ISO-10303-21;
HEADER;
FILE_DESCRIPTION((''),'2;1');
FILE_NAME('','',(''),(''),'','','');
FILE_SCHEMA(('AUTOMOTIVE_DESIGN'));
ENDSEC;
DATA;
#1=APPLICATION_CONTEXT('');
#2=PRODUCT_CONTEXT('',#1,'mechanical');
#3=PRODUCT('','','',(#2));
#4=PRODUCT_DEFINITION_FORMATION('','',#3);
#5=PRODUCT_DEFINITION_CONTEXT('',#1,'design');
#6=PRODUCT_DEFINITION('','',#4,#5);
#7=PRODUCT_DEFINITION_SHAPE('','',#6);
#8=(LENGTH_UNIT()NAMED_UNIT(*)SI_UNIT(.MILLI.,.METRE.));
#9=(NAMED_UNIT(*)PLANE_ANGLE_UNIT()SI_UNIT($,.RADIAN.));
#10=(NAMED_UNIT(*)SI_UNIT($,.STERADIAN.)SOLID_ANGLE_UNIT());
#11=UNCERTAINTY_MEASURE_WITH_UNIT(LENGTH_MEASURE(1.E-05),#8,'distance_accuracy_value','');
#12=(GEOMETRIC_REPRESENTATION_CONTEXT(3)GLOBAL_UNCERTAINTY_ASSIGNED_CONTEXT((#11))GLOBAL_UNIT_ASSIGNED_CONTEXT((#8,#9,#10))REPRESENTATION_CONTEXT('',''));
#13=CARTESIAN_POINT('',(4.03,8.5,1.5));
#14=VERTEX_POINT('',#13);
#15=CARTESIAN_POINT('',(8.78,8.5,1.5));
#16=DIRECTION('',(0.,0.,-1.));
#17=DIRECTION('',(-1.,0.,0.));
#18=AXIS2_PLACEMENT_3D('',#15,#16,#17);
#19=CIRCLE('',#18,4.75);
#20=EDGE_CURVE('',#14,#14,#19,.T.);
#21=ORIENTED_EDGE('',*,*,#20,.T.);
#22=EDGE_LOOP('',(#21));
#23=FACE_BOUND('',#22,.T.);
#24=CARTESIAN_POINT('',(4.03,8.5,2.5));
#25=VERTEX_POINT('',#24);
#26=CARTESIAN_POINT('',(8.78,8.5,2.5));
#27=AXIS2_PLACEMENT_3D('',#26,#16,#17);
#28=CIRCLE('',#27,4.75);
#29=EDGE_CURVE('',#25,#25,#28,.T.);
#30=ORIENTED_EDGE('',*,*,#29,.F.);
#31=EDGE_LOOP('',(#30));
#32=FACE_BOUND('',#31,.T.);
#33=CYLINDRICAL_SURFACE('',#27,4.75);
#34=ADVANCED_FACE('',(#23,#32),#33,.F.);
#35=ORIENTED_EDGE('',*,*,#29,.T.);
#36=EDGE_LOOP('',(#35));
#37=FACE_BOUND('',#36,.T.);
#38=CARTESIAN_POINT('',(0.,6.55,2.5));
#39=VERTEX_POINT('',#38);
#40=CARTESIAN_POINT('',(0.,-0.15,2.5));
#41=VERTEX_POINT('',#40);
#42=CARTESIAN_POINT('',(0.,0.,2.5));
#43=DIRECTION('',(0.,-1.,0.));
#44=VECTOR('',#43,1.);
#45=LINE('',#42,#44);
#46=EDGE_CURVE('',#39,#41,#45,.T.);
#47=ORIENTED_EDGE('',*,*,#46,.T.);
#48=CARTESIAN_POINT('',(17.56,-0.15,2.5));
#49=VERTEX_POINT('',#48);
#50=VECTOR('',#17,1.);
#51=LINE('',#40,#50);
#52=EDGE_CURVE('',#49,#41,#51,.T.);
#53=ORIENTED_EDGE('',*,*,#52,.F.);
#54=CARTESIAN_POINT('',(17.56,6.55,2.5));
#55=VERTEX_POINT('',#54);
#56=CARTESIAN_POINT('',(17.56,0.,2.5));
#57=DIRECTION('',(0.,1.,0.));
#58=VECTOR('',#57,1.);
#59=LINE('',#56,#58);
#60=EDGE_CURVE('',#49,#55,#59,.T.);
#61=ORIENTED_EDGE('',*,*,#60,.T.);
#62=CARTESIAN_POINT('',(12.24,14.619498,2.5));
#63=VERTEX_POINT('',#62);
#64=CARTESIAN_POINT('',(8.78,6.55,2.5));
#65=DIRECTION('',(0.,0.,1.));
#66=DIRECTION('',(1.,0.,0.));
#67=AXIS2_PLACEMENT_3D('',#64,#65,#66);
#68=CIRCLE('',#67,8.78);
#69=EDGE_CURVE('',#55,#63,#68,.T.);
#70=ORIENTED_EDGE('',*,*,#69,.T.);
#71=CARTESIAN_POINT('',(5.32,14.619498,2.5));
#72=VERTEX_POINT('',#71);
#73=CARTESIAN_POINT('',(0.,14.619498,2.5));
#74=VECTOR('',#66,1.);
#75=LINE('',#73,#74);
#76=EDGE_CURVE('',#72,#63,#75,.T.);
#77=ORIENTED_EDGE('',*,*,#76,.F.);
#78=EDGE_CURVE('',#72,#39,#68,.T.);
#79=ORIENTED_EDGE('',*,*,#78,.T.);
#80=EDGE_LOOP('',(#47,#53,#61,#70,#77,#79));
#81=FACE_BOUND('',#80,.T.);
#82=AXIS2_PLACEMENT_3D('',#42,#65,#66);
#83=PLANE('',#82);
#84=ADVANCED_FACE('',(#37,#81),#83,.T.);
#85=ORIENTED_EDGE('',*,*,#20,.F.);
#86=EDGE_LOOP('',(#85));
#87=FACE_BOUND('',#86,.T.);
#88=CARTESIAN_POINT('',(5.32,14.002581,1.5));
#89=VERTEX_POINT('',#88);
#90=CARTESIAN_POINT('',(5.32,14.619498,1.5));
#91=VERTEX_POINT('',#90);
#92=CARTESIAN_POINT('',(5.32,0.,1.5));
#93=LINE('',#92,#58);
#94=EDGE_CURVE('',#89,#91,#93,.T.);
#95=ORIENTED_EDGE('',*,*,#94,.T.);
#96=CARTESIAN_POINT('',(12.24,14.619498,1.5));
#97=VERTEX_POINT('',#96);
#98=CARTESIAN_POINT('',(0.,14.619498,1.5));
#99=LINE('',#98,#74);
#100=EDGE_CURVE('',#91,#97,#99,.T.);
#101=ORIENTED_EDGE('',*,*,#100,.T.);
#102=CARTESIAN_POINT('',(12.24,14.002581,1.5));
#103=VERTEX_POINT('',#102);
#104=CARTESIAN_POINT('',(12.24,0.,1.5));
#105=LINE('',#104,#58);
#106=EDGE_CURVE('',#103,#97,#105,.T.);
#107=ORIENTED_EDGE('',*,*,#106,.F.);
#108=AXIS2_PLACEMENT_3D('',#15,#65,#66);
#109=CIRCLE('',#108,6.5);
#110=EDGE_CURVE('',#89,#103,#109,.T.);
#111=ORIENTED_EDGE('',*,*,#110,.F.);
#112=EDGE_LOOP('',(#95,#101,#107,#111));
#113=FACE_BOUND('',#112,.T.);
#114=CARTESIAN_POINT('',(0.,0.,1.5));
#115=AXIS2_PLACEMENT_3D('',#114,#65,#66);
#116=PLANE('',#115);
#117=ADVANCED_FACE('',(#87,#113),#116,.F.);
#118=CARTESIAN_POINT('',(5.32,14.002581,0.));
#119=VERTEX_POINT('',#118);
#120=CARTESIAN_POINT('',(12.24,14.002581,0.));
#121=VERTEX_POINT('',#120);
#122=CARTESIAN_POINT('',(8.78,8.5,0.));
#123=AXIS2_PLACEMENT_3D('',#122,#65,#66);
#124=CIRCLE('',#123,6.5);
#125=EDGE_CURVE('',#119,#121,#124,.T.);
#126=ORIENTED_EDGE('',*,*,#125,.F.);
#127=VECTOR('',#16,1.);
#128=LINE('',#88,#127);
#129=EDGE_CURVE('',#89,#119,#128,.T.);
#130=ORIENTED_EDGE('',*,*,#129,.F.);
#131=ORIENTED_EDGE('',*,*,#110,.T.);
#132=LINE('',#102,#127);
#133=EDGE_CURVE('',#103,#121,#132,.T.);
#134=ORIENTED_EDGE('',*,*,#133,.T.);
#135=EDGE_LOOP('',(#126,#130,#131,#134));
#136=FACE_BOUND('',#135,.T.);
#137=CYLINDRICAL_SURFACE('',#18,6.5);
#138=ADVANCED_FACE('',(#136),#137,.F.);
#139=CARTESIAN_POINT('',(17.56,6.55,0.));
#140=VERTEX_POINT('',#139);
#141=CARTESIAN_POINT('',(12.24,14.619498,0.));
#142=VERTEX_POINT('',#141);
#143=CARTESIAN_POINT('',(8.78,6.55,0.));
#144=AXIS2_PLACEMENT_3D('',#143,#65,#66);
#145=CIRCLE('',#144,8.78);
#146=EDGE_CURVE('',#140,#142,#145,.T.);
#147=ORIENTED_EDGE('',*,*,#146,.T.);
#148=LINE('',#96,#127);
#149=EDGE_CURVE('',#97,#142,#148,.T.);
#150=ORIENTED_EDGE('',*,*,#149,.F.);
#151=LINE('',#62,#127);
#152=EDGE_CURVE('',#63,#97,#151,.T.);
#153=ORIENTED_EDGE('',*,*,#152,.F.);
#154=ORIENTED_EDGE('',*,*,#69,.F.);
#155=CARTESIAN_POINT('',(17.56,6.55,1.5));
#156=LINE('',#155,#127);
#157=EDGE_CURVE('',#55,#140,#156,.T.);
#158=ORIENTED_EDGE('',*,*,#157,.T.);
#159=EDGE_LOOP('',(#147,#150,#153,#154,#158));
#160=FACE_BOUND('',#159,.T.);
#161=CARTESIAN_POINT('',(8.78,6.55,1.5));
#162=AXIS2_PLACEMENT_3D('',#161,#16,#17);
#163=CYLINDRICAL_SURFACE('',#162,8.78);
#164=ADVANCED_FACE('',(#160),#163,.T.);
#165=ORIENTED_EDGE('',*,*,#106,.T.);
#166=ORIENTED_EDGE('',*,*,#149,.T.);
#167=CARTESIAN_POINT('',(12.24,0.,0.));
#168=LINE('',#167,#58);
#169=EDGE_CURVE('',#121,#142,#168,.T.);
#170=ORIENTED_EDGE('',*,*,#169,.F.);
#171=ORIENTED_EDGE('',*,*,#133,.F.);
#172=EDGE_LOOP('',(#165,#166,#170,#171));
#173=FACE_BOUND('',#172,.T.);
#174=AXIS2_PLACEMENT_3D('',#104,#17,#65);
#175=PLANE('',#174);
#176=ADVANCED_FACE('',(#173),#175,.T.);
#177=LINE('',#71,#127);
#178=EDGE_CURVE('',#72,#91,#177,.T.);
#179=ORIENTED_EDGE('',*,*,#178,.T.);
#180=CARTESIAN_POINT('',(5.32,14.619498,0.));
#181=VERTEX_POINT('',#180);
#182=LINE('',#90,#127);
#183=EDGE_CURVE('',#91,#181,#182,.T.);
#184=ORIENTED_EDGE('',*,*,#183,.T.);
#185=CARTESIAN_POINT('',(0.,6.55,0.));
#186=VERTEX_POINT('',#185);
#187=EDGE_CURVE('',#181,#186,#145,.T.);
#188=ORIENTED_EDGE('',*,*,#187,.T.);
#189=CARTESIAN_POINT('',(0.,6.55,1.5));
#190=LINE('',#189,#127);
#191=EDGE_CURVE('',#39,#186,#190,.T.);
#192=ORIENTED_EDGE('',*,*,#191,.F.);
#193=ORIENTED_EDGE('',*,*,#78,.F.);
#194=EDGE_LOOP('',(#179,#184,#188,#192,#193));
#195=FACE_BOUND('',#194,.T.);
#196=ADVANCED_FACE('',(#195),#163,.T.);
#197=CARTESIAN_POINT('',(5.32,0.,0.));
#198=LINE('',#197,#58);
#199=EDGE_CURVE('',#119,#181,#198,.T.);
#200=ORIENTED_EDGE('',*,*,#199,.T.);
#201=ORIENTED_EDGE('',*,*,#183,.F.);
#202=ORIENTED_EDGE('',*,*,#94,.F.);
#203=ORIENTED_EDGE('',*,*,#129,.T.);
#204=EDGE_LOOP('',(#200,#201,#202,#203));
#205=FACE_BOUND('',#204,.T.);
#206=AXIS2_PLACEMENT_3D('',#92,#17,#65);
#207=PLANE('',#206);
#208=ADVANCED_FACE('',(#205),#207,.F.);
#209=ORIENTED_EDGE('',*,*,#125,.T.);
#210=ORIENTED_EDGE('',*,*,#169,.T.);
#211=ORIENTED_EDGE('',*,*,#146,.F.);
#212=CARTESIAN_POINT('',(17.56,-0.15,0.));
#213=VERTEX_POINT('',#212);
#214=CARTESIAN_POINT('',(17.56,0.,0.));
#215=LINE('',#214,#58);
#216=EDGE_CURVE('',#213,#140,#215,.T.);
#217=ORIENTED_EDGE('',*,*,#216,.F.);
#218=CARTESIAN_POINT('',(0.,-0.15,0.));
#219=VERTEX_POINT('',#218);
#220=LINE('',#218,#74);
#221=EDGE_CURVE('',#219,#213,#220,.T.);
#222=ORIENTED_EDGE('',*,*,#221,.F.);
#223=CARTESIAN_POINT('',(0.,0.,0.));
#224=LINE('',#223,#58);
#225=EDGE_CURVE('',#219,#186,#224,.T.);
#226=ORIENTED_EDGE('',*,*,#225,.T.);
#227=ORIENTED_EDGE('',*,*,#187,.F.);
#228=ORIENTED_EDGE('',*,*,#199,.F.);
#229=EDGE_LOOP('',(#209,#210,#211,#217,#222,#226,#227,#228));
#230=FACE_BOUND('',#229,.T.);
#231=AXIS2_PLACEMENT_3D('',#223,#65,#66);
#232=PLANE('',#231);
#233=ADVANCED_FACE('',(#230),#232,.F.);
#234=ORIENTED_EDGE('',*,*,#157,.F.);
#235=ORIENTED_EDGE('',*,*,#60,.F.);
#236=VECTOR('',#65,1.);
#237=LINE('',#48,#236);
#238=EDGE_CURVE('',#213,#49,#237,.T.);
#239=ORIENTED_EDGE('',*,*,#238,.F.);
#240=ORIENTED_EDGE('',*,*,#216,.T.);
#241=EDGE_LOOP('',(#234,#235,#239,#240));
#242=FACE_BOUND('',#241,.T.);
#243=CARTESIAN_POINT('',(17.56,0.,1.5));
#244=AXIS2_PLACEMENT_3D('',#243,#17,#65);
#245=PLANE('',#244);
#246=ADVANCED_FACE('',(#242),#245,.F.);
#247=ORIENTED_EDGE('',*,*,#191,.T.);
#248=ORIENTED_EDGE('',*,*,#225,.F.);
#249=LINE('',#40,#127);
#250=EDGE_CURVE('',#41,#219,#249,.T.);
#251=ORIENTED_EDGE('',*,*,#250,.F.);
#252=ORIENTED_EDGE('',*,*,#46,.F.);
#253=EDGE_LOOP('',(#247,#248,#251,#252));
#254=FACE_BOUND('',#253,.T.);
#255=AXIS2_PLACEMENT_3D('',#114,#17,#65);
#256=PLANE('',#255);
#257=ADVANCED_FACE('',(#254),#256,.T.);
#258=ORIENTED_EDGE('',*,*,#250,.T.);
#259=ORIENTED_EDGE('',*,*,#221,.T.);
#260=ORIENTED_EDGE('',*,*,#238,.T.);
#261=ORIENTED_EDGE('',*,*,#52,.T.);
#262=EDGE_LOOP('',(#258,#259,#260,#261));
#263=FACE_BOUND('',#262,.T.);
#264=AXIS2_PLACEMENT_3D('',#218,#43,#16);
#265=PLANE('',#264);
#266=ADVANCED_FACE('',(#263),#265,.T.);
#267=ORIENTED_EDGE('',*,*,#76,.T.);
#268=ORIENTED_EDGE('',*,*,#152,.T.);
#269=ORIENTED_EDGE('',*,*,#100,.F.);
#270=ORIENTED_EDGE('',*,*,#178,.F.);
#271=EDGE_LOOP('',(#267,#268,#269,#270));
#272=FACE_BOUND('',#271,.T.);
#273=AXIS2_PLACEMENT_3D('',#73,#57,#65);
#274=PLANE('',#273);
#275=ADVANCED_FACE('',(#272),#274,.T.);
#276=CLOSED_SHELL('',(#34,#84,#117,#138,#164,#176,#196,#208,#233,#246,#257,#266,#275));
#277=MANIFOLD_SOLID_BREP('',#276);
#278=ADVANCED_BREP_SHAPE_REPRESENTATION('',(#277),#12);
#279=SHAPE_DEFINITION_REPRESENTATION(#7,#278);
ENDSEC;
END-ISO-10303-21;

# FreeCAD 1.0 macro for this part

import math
import FreeCAD as App
import Part
import Sketcher

V = App.Vector
Q = App.Units.Quantity


def add_polygon(sketch, points):
    """Adds a closed chain of lines whose ends are joined by coincident constraints."""
    first, n = sketch.GeometryCount, len(points)
    for a, b in zip(points, points[1:] + points[:1]):
        sketch.addGeometry(Part.LineSegment(App.Vector(*a, 0), App.Vector(*b, 0)), False)
    for i in range(n):
        sketch.addConstraint(Sketcher.Constraint("Coincident", first + i, 2, first + (i + 1) % n, 1))

doc = App.newDocument("Part")
body = doc.addObject("PartDesign::Body", "Body")

# Sketch on XY plane
sketch1 = body.newObject("Sketcher::SketchObject", "Sketch")
sketch1.AttachmentSupport = (doc.getObject("XY_Plane"), [""])
sketch1.MapMode = "FlatFace"
sketch1.addGeometry([
    Part.ArcOfCircle(Part.Circle(V(8.8, 8.5, 0), V(0, 0, 1), 6.5), math.radians(-163), math.radians(-17)),  # 0
    Part.ArcOfCircle(Part.Circle(V(8.8, 8.5, 0), V(0, 0, 1), 6.5), math.radians(122), math.radians(197)),  # 1
    Part.LineSegment(V(5.3, 14, 0), V(5.3, 14.6, 0)),  # 2
    Part.ArcOfCircle(Part.Circle(V(8.8, 6.5, 0), V(0, 0, 1), 8.8), math.radians(113), math.radians(180)),  # 3
    Part.LineSegment(V(0, 6.5, 0), V(0, 0, 0)),  # 4
    Part.LineSegment(V(0, 0, 0), V(17.6, 0, 0)),  # 5
    Part.LineSegment(V(17.6, 0, 0), V(17.6, 6.5, 0)),  # 6
    Part.ArcOfCircle(Part.Circle(V(8.8, 6.5, 0), V(0, 0, 1), 8.8), math.radians(0), math.radians(67)),  # 7
    Part.LineSegment(V(12.2, 14.6, 0), V(12.2, 14, 0)),  # 8
    Part.ArcOfCircle(Part.Circle(V(8.8, 8.5, 0), V(0, 0, 1), 6.5), math.radians(-17), math.radians(58)),  # 9
], False)
sketch1.addConstraint([
    Sketcher.Constraint("Tangent", 0, 1, 1, 2),
    Sketcher.Constraint("Coincident", 1, 1, 2, 1),
    Sketcher.Constraint("Coincident", 2, 2, 3, 1),
    Sketcher.Constraint("Tangent", 3, 2, 4, 1),
    Sketcher.Constraint("Coincident", 4, 2, 5, 1),
    Sketcher.Constraint("Coincident", 5, 2, 6, 1),
    Sketcher.Constraint("Tangent", 6, 2, 7, 1),
    Sketcher.Constraint("Coincident", 7, 2, 8, 1),
    Sketcher.Constraint("Coincident", 8, 2, 9, 2),
    Sketcher.Constraint("Tangent", 9, 1, 0, 2),
    Sketcher.Constraint("Vertical", 2),
    Sketcher.Constraint("Vertical", 4),
    Sketcher.Constraint("Horizontal", 5),
    Sketcher.Constraint("Vertical", 6),
    Sketcher.Constraint("Vertical", 8),
    Sketcher.Constraint("Coincident", 4, 2, -1, 1),
    Sketcher.Constraint("Coincident", 7, 3, 3, 3),
    Sketcher.Constraint("Equal", 0, 1),
    Sketcher.Constraint("Equal", 3, 7),
    Sketcher.Constraint("Equal", 1, 9),
    Sketcher.Constraint("Horizontal", 7, 3, 0, 1),
    Sketcher.Constraint("Horizontal", 2, 2, 7, 2),
    Sketcher.Constraint("Horizontal", 1, 1, 8, 2),
    Sketcher.Constraint("Horizontal", 6, 2, 9, 1),
    Sketcher.Constraint("Radius", 0, Q("6.5 mm")),
    Sketcher.Constraint("Radius", 3, Q("8.78 mm")),
    Sketcher.Constraint("DistanceY", 4, 2, 4, 1, Q("6.55 mm")),
    Sketcher.Constraint("DistanceY", -1, 1, 0, 3, Q("8.5 mm")),
    Sketcher.Constraint("DistanceX", -1, 1, 1, 1, Q("5.32 mm")),
])
pad1 = body.newObject("PartDesign::Pad", "Pad")
pad1.Profile = sketch1
pad1.Length = 1.5

# Sketch on XY plane
sketch2 = body.newObject("Sketcher::SketchObject", "Sketch001")
sketch2.AttachmentSupport = (doc.getObject("XY_Plane"), [""])
sketch2.MapMode = "FlatFace"
sketch2.AttachmentOffset = App.Placement(V(0, 0, 1.5), App.Rotation())
sketch2.addGeometry([
    Part.ArcOfCircle(Part.Circle(V(9, 7, 0), V(0, 0, 1), 9), math.radians(113), math.radians(180)),  # 0
    Part.LineSegment(V(0, 7, 0), V(0, 0, 0)),  # 1
    Part.LineSegment(V(0, 0, 0), V(18, 0, 0)),  # 2
    Part.LineSegment(V(18, 0, 0), V(18, 7, 0)),  # 3
    Part.ArcOfCircle(Part.Circle(V(9, 7, 0), V(0, 0, 1), 9), math.radians(0), math.radians(67)),  # 4
    Part.LineSegment(V(12, 15, 0), V(5, 15, 0)),  # 5
], False)
sketch2.addConstraint([
    Sketcher.Constraint("Tangent", 0, 2, 1, 1),
    Sketcher.Constraint("Coincident", 1, 2, 2, 1),
    Sketcher.Constraint("Coincident", 2, 2, 3, 1),
    Sketcher.Constraint("Tangent", 3, 2, 4, 1),
    Sketcher.Constraint("Coincident", 4, 2, 5, 1),
    Sketcher.Constraint("Coincident", 5, 2, 0, 1),
    Sketcher.Constraint("Vertical", 1),
    Sketcher.Constraint("Horizontal", 2),
    Sketcher.Constraint("Vertical", 3),
    Sketcher.Constraint("Horizontal", 5),
    Sketcher.Constraint("Coincident", 1, 2, -1, 1),
    Sketcher.Constraint("Coincident", 4, 3, 0, 3),
    Sketcher.Constraint("Equal", 0, 4),
    Sketcher.Constraint("Radius", 0, Q("8.78 mm")),
    Sketcher.Constraint("DistanceX", 5, 2, 5, 1, Q("6.92 mm")),
    Sketcher.Constraint("DistanceY", 1, 2, 1, 1, Q("6.55 mm")),
])
pad2 = body.newObject("PartDesign::Pad", "Pad001")
pad2.Profile = sketch2
pad2.Length = 1

# Sketch on XY plane
sketch3 = body.newObject("Sketcher::SketchObject", "Sketch002")
sketch3.AttachmentSupport = (doc.getObject("XY_Plane"), [""])
sketch3.MapMode = "FlatFace"
sketch3.AttachmentOffset = App.Placement(V(0, 0, 1.5), App.Rotation())
sketch3.addGeometry(Part.Circle(V(8.8, 8.5, 0), V(0, 0, 1), 4.8), False)
sketch3.addConstraint([
    Sketcher.Constraint("Diameter", 0, Q("9.5 mm")),
    Sketcher.Constraint("DistanceY", -1, 1, 0, 3, Q("8.5 mm")),
    Sketcher.Constraint("DistanceX", -1, 1, 0, 3, Q("8.78 mm")),
])
pocket1 = body.newObject("PartDesign::Pocket", "Pocket")
pocket1.Profile = sketch3
pocket1.Type = "ThroughAll"
pocket1.Reversed = True

# Sketch on XZ plane
sketch4 = body.newObject("Sketcher::SketchObject", "Sketch003")
sketch4.AttachmentSupport = (doc.getObject("XZ_Plane"), [""])
sketch4.MapMode = "FlatFace"
add_polygon(sketch4, [(0, 2.5), (0, 0), (17.6, 0), (17.6, 2.5)])  # lines 0-3
sketch4.addConstraint([
    Sketcher.Constraint("Vertical", 0),
    Sketcher.Constraint("Horizontal", 1),
    Sketcher.Constraint("Vertical", 2),
    Sketcher.Constraint("Horizontal", 3),
    Sketcher.Constraint("Coincident", 0, 2, -1, 1),
    Sketcher.Constraint("DistanceY", 0, 2, 0, 1, Q("2.5 mm")),
    Sketcher.Constraint("DistanceX", 1, 1, 1, 2, Q("17.56 mm")),
])
pad3 = body.newObject("PartDesign::Pad", "Pad002")
pad3.Profile = sketch4
pad3.Length = 0.15

doc.recompute()
